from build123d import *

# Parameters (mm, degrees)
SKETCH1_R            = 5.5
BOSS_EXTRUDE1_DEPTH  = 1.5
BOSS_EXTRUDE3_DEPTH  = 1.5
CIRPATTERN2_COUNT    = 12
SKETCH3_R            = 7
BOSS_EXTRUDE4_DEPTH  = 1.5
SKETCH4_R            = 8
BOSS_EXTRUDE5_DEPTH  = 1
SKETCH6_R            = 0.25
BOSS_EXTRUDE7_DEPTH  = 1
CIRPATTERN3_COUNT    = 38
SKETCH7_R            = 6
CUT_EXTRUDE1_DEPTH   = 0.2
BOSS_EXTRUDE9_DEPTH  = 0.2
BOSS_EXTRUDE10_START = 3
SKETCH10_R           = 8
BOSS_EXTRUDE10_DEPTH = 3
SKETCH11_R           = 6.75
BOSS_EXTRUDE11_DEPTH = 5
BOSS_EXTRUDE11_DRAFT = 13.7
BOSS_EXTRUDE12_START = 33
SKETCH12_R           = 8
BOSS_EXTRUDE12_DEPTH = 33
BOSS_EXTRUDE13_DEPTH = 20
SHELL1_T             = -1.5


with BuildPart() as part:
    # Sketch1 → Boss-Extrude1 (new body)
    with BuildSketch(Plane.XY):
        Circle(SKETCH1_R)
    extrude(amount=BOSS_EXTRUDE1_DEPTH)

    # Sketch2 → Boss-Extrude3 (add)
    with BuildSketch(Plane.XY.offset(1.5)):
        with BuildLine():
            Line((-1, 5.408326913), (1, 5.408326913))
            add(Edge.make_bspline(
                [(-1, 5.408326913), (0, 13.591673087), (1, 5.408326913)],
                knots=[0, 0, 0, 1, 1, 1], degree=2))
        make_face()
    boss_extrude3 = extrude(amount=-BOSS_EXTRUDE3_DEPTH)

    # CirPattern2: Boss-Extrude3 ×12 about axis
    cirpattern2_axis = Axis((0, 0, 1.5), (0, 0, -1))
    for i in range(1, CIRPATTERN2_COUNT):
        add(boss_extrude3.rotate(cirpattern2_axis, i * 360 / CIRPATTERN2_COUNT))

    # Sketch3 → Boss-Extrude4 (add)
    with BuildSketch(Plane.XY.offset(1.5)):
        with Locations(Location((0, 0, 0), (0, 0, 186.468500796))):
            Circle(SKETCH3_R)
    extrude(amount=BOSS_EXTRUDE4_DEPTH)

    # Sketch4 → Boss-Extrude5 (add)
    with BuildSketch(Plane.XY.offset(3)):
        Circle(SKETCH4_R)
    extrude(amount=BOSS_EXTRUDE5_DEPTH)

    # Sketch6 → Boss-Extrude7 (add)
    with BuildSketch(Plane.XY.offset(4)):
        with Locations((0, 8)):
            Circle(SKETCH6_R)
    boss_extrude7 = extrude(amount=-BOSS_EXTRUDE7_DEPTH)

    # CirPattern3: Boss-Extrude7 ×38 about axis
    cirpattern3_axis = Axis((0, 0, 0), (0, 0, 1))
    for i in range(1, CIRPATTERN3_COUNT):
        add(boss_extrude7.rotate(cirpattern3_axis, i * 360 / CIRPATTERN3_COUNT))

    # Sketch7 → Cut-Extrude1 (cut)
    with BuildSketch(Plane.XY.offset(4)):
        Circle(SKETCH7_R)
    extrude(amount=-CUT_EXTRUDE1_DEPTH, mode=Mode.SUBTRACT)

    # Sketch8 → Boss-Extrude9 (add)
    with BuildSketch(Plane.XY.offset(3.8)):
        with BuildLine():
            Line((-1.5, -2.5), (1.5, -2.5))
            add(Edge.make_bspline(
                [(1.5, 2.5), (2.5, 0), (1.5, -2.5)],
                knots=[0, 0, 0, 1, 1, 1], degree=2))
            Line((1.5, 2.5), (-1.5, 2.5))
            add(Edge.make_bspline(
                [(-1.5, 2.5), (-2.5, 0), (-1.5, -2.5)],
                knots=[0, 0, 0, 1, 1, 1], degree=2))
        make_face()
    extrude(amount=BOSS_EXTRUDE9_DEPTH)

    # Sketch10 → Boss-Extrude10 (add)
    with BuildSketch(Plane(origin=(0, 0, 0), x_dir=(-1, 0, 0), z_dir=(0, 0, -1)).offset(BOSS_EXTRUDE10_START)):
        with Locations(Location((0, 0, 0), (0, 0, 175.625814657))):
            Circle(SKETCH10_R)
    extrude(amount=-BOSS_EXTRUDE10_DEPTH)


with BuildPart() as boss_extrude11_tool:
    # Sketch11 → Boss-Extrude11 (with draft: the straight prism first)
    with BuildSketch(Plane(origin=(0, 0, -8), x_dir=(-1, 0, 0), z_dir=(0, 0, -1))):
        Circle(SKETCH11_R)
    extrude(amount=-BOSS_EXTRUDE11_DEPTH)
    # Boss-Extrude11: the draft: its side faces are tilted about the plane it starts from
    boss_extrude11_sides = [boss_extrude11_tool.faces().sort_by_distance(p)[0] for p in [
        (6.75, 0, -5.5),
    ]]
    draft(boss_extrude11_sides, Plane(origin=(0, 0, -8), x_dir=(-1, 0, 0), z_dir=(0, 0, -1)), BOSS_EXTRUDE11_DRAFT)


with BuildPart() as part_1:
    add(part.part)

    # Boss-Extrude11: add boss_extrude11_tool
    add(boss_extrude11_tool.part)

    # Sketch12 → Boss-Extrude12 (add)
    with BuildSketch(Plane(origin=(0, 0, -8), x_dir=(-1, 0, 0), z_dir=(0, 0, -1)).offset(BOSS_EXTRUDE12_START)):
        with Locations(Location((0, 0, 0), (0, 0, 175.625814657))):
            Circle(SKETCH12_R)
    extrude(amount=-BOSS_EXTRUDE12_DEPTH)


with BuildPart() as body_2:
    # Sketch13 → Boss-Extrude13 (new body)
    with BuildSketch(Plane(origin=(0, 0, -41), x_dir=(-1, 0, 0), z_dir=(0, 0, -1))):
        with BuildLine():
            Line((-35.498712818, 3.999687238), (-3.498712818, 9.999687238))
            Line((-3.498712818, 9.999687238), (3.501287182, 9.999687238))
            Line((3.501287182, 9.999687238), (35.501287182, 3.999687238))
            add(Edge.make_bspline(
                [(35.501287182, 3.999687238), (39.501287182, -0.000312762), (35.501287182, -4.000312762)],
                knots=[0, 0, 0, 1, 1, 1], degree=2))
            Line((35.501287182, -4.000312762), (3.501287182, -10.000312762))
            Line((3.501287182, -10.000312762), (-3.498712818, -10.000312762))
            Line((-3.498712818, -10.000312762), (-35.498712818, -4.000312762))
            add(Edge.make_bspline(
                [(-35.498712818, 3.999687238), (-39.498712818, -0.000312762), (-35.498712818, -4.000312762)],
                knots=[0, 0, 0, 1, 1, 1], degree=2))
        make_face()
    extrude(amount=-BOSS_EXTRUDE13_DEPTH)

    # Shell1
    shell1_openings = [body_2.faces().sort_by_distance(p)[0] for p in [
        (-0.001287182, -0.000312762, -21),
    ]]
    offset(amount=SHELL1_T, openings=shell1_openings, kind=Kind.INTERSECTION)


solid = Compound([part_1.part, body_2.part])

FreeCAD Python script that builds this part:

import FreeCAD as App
import Part
import Sketcher


def faces_at(feature, points):
    """Names of the faces that lie closest to the given points."""
    faces = feature.Shape.Faces
    near = lambda p: min(range(len(faces)), key=lambda i: faces[i].distToShape(Part.Vertex(*p))[0])
    return sorted({f"Face{near(p) + 1}" for p in points})

doc = App.newDocument("Part")
body = doc.addObject("PartDesign::Body", "Body")

sketch1 = body.newObject("Sketcher::SketchObject", "Sketch")
sketch1.AttachmentSupport = (doc.getObject("XY_Plane"), [""])
sketch1.MapMode = "FlatFace"
sketch1.addGeometry(Part.Circle(App.Vector(0, 0, 0), App.Vector(0, 0, 1), 6), False)
sketch1.addConstraint(Sketcher.Constraint("Coincident", 0, 3, -1, 1))
sketch1.addConstraint(Sketcher.Constraint("Diameter", 0, 11.0))
pad1 = body.newObject("PartDesign::Pad", "Pad")
pad1.Profile = sketch1
pad1.Length = 1.5

sketch2 = body.newObject("Sketcher::SketchObject", "Sketch001")
sketch2.AttachmentSupport = (doc.getObject("XY_Plane"), [""])
sketch2.MapMode = "FlatFace"
sketch2.AttachmentOffset = App.Placement(App.Vector(0, 0, 1.5), App.Rotation())
sketch2.addGeometry(Part.LineSegment(App.Vector(-1, 5.408327, 0), App.Vector(1, 5.408327, 0)), False)
sketch2.addGeometry(Part.BSplineCurve([App.Vector(-1, 5.408327, 0), App.Vector(0, 13.591673, 0), App.Vector(1, 5.408327, 0)], [3, 3], [0, 1], False, 2, [1, 1, 1], False), False)
sketch2.addConstraint(Sketcher.Constraint("Block", 1))
sketch2.addConstraint(Sketcher.Constraint("Coincident", 0, 1, 1, 1))
sketch2.addConstraint(Sketcher.Constraint("Coincident", 1, 2, 0, 2))
pad2 = body.newObject("PartDesign::Pad", "Pad001")
pad2.Profile = sketch2
pad2.Length = 1.5
pad2.Reversed = True
doc.recompute()

polarpattern = body.newObject("PartDesign::PolarPattern", "PolarPattern")
polarpattern.Originals = [pad2]
polarpattern.Axis = (doc.getObject("Z_Axis"), [""])
polarpattern.Angle = 360
polarpattern.Occurrences = 12
body.Tip = polarpattern

sketch3 = body.newObject("Sketcher::SketchObject", "Sketch002")
sketch3.AttachmentSupport = (doc.getObject("XY_Plane"), [""])
sketch3.MapMode = "FlatFace"
sketch3.AttachmentOffset = App.Placement(App.Vector(0, 0, 1.5), App.Rotation())
sketch3.addGeometry(Part.Circle(App.Vector(0, 0, 0), App.Vector(0, 0, 1), 7), False)
sketch3.addConstraint(Sketcher.Constraint("Coincident", 0, 3, -1, 1))
sketch3.addConstraint(Sketcher.Constraint("Diameter", 0, 14.0))
pad3 = body.newObject("PartDesign::Pad", "Pad002")
pad3.Profile = sketch3
pad3.Length = 1.5

sketch4 = body.newObject("Sketcher::SketchObject", "Sketch003")
sketch4.AttachmentSupport = (doc.getObject("XY_Plane"), [""])
sketch4.MapMode = "FlatFace"
sketch4.AttachmentOffset = App.Placement(App.Vector(0, 0, 3), App.Rotation())
sketch4.addGeometry(Part.Circle(App.Vector(0, 0, 0), App.Vector(0, 0, 1), 8), False)
sketch4.addConstraint(Sketcher.Constraint("Coincident", 0, 3, -1, 1))
sketch4.addConstraint(Sketcher.Constraint("Diameter", 0, 16.0))
pad4 = body.newObject("PartDesign::Pad", "Pad003")
pad4.Profile = sketch4
pad4.Length = 1

sketch5 = body.newObject("Sketcher::SketchObject", "Sketch004")
sketch5.AttachmentSupport = (doc.getObject("XY_Plane"), [""])
sketch5.MapMode = "FlatFace"
sketch5.AttachmentOffset = App.Placement(App.Vector(0, 0, 4), App.Rotation())
sketch5.addGeometry(Part.Circle(App.Vector(0, 8, 0), App.Vector(0, 0, 1), 0.25), False)
sketch5.addConstraint(Sketcher.Constraint("PointOnObject", 0, 3, -2))
sketch5.addConstraint(Sketcher.Constraint("Diameter", 0, 0.5))
sketch5.addConstraint(Sketcher.Constraint("DistanceY", -1, 1, 0, 3, 8.0))
pad5 = body.newObject("PartDesign::Pad", "Pad004")
pad5.Profile = sketch5
pad5.Length = 1
pad5.Reversed = True
doc.recompute()

polarpattern2 = body.newObject("PartDesign::PolarPattern", "PolarPattern001")
polarpattern2.Originals = [pad5]
polarpattern2.Axis = (doc.getObject("Z_Axis"), [""])
polarpattern2.Angle = 360
polarpattern2.Occurrences = 38
body.Tip = polarpattern2

sketch6 = body.newObject("Sketcher::SketchObject", "Sketch005")
sketch6.AttachmentSupport = (doc.getObject("XY_Plane"), [""])
sketch6.MapMode = "FlatFace"
sketch6.AttachmentOffset = App.Placement(App.Vector(0, 0, 4), App.Rotation())
sketch6.addGeometry(Part.Circle(App.Vector(0, 0, 0), App.Vector(0, 0, 1), 6), False)
sketch6.addConstraint(Sketcher.Constraint("Coincident", 0, 3, -1, 1))
sketch6.addConstraint(Sketcher.Constraint("Diameter", 0, 12.0))
pocket1 = body.newObject("PartDesign::Pocket", "Pocket")
pocket1.Profile = sketch6
pocket1.Length = 0.2

sketch7 = body.newObject("Sketcher::SketchObject", "Sketch006")
sketch7.AttachmentSupport = (doc.getObject("XY_Plane"), [""])
sketch7.MapMode = "FlatFace"
sketch7.AttachmentOffset = App.Placement(App.Vector(0, 0, 3.8), App.Rotation())
sketch7.addGeometry(Part.LineSegment(App.Vector(-1.5, -2.5, 0), App.Vector(1.5, -2.5, 0)), False)
sketch7.addGeometry(Part.BSplineCurve([App.Vector(1.5, 2.5, 0), App.Vector(2.5, 0, 0), App.Vector(1.5, -2.5, 0)], [3, 3], [0, 1], False, 2, [1, 1, 1], False), False)
sketch7.addGeometry(Part.LineSegment(App.Vector(1.5, 2.5, 0), App.Vector(-1.5, 2.5, 0)), False)
sketch7.addGeometry(Part.BSplineCurve([App.Vector(-1.5, 2.5, 0), App.Vector(-2.5, 0, 0), App.Vector(-1.5, -2.5, 0)], [3, 3], [0, 1], False, 2, [1, 1, 1], False), False)
sketch7.addConstraint(Sketcher.Constraint("Block", 1))
sketch7.addConstraint(Sketcher.Constraint("Block", 3))
sketch7.addConstraint(Sketcher.Constraint("Coincident", 0, 2, 1, 2))
sketch7.addConstraint(Sketcher.Constraint("Coincident", 1, 1, 2, 1))
sketch7.addConstraint(Sketcher.Constraint("Coincident", 2, 2, 3, 1))
sketch7.addConstraint(Sketcher.Constraint("Coincident", 3, 2, 0, 1))
pad6 = body.newObject("PartDesign::Pad", "Pad005")
pad6.Profile = sketch7
pad6.Length = 0.2

sketch8 = body.newObject("Sketcher::SketchObject", "Sketch007")
sketch8.AttachmentSupport = (doc.getObject("XY_Plane"), [""])
sketch8.MapMode = "FlatFace"
sketch8.AttachmentOffset = App.Placement(App.Vector(0, 0, -3), App.Rotation())
sketch8.addGeometry(Part.Circle(App.Vector(0, 0, 0), App.Vector(0, 0, 1), 8), False)
sketch8.addConstraint(Sketcher.Constraint("Coincident", 0, 3, -1, 1))
sketch8.addConstraint(Sketcher.Constraint("Diameter", 0, 16.0))
pad7 = body.newObject("PartDesign::Pad", "Pad006")
pad7.Profile = sketch8
pad7.Length = 3
body2 = doc.addObject("PartDesign::Body", "Body001")

sketch9 = body2.newObject("Sketcher::SketchObject", "Sketch008")
sketch9.AttachmentSupport = (doc.getObject("XY_Plane001"), [""])
sketch9.MapMode = "FlatFace"
sketch9.AttachmentOffset = App.Placement(App.Vector(0, 0, -8), App.Rotation())
sketch9.addGeometry(Part.Circle(App.Vector(0, 0, 0), App.Vector(0, 0, 1), 7), False)
sketch9.addConstraint(Sketcher.Constraint("Coincident", 0, 3, -1, 1))
sketch9.addConstraint(Sketcher.Constraint("Diameter", 0, 13.5))
pad8 = body2.newObject("PartDesign::Pad", "Pad007")
pad8.Profile = sketch9
pad8.Length = 5
doc.recompute()

datumplane = body2.newObject("PartDesign::Plane", "DatumPlane")
datumplane.AttachmentSupport = (doc.getObject("XY_Plane001"), [""])
datumplane.MapMode = "FlatFace"
datumplane.AttachmentOffset = App.Placement(App.Vector(0, 0, -8), App.Rotation())
draft = body2.newObject("PartDesign::Draft", "Draft")
draft.Base = (pad8, faces_at(pad8, [(6.75, 0, -5.5)]))
draft.NeutralPlane = (datumplane, [""])
draft.Angle = 13.7
draft.Reversed = True
doc.recompute()

boolean = body.newObject("PartDesign::Boolean", "Boolean")
boolean.Type = "Fuse"
boolean.addObjects([body2])

sketch10 = body.newObject("Sketcher::SketchObject", "Sketch009")
sketch10.AttachmentSupport = (doc.getObject("XY_Plane"), [""])
sketch10.MapMode = "FlatFace"
sketch10.AttachmentOffset = App.Placement(App.Vector(0, 0, -41), App.Rotation())
sketch10.addGeometry(Part.Circle(App.Vector(0, 0, 0), App.Vector(0, 0, 1), 8), False)
sketch10.addConstraint(Sketcher.Constraint("Coincident", 0, 3, -1, 1))
sketch10.addConstraint(Sketcher.Constraint("Diameter", 0, 16.0))
pad9 = body.newObject("PartDesign::Pad", "Pad008")
pad9.Profile = sketch10
pad9.Length = 33
body3 = doc.addObject("PartDesign::Body", "Body002")

sketch11 = body3.newObject("Sketcher::SketchObject", "Sketch010")
sketch11.AttachmentSupport = (doc.getObject("XY_Plane002"), [""])
sketch11.MapMode = "FlatFace"
sketch11.AttachmentOffset = App.Placement(App.Vector(0, 0, -41), App.Rotation())
sketch11.addGeometry(Part.LineSegment(App.Vector(3.498713, 9.999687, 0), App.Vector(35.498713, 3.999687, 0)), False)
sketch11.addGeometry(Part.BSplineCurve([App.Vector(35.498713, 3.999687, 0), App.Vector(39.498713, -0.000313, 0), App.Vector(35.498713, -4.000313, 0)], [3, 3], [0, 1], False, 2, [1, 1, 1], False), False)
sketch11.addGeometry(Part.LineSegment(App.Vector(35.498713, -4.000313, 0), App.Vector(3.498713, -10.000313, 0)), False)
sketch11.addGeometry(Part.LineSegment(App.Vector(3.498713, -10.000313, 0), App.Vector(-3.501287, -10.000313, 0)), False)
sketch11.addGeometry(Part.LineSegment(App.Vector(-3.501287, -10.000313, 0), App.Vector(-35.501287, -4.000313, 0)), False)
sketch11.addGeometry(Part.BSplineCurve([App.Vector(-35.501287, 3.999687, 0), App.Vector(-39.501287, -0.000313, 0), App.Vector(-35.501287, -4.000313, 0)], [3, 3], [0, 1], False, 2, [1, 1, 1], False), False)
sketch11.addGeometry(Part.LineSegment(App.Vector(-35.501287, 3.999687, 0), App.Vector(-3.501287, 9.999687, 0)), False)
sketch11.addGeometry(Part.LineSegment(App.Vector(-3.501287, 9.999687, 0), App.Vector(3.498713, 9.999687, 0)), False)
sketch11.addConstraint(Sketcher.Constraint("Block", 1))
sketch11.addConstraint(Sketcher.Constraint("Block", 5))
sketch11.addConstraint(Sketcher.Constraint("Coincident", 0, 2, 1, 1))
sketch11.addConstraint(Sketcher.Constraint("Coincident", 1, 2, 2, 1))
sketch11.addConstraint(Sketcher.Constraint("Coincident", 2, 2, 3, 1))
sketch11.addConstraint(Sketcher.Constraint("Coincident", 3, 2, 4, 1))
sketch11.addConstraint(Sketcher.Constraint("Coincident", 4, 2, 5, 2))
sketch11.addConstraint(Sketcher.Constraint("Coincident", 5, 1, 6, 1))
sketch11.addConstraint(Sketcher.Constraint("Coincident", 6, 2, 7, 1))
sketch11.addConstraint(Sketcher.Constraint("Coincident", 7, 2, 0, 1))
sketch11.addConstraint(Sketcher.Constraint("Horizontal", 3))
sketch11.addConstraint(Sketcher.Constraint("Horizontal", 7))
sketch11.addConstraint(Sketcher.Constraint("DistanceX", 3, 2, 3, 1, 7.0))
sketch11.addConstraint(Sketcher.Constraint("DistanceX", 7, 1, 7, 2, 7.0))
sketch11.addConstraint(Sketcher.Constraint("DistanceX", 2, 2, 0, 2, 32.0))
sketch11.addConstraint(Sketcher.Constraint("DistanceY", 2, 2, 0, 2, 14.0))
sketch11.addConstraint(Sketcher.Constraint("DistanceY", 3, 2, 6, 2, 20.0))
sketch11.addConstraint(Sketcher.Constraint("DistanceX", 6, 2, 2, 2, 7.0))
pad10 = body3.newObject("PartDesign::Pad", "Pad009")
pad10.Profile = sketch11
pad10.Length = 20
doc.recompute()

thickness = body3.newObject("PartDesign::Thickness", "Thickness")
thickness.Base = (pad10, faces_at(pad10, [(-0.001, 0, -21)]))
thickness.Value = 1.5
thickness.Reversed = True
thickness.Join = "Intersection"

doc.recompute()
